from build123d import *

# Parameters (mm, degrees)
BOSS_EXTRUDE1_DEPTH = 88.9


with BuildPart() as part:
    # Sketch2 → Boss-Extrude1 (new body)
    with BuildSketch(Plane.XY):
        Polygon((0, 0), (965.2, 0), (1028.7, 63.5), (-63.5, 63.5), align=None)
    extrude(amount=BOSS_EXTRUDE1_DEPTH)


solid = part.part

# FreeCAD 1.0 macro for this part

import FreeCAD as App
import Part
import Sketcher
from FreeCAD import Vector
Q = App.Units.Quantity


def add_polygon(sketch, points):
    """Adds a closed chain of lines whose ends are joined by coincident constraints."""
    first, n = sketch.GeometryCount, len(points)
    for a, b in zip(points, points[1:] + points[:1]):
        sketch.addGeometry(Part.LineSegment(App.Vector(*a, 0), App.Vector(*b, 0)), False)
    for i in range(n):
        sketch.addConstraint(Sketcher.Constraint("Coincident", first + i, 2, first + (i + 1) % n, 1))

doc = App.newDocument("Part")
params = doc.addObject("Spreadsheet::Sheet", "Params")
for row, (alias, value) in enumerate([
    ("sketch1_width", "38 in"),
    ("sketch1_width2", "43 in"),
    ("pad1_length", "3.5 in"),
], start=1):
    params.set(f"A{row}", alias)
    params.set(f"B{row}", "=" + value)
    params.setAlias(f"B{row}", alias)

body = doc.addObject("PartDesign::Body", "Body")

# Sketch on XY plane
sketch1 = body.newObject("Sketcher::SketchObject", "Sketch")
sketch1.AttachmentSupport = (doc.getObject("XY_Plane"), [""])
sketch1.MapMode = "FlatFace"
add_polygon(sketch1, [(0, 0), (965, 0), (1029, 64), (-64, 64)])  # lines 0-3
sketch1.addConstraint(Sketcher.Constraint("Horizontal", 0))
sketch1.addConstraint(Sketcher.Constraint("Horizontal", 2))
sketch1.addConstraint(Sketcher.Constraint("Coincident", 3, 2, -1, 1))
sketch1.addConstraint(Sketcher.Constraint("Perpendicular", 1, 3))
sketch1.addConstraint(Sketcher.Constraint("Equal", 1, 3))
sketch1.addConstraint(Sketcher.Constraint("DistanceX", 0, 1, 0, 2, Q("38 in")))
sketch1.addConstraint(Sketcher.Constraint("DistanceX", 2, 2, 2, 1, Q("43 in")))
sketch1.setExpression("Constraints[9]", "Params.sketch1_width")
sketch1.setExpression("Constraints[10]", "Params.sketch1_width2")
pad1 = body.newObject("PartDesign::Pad", "Pad")
pad1.Profile = sketch1
pad1.setExpression("Length", "Params.pad1_length")

doc.recompute()
